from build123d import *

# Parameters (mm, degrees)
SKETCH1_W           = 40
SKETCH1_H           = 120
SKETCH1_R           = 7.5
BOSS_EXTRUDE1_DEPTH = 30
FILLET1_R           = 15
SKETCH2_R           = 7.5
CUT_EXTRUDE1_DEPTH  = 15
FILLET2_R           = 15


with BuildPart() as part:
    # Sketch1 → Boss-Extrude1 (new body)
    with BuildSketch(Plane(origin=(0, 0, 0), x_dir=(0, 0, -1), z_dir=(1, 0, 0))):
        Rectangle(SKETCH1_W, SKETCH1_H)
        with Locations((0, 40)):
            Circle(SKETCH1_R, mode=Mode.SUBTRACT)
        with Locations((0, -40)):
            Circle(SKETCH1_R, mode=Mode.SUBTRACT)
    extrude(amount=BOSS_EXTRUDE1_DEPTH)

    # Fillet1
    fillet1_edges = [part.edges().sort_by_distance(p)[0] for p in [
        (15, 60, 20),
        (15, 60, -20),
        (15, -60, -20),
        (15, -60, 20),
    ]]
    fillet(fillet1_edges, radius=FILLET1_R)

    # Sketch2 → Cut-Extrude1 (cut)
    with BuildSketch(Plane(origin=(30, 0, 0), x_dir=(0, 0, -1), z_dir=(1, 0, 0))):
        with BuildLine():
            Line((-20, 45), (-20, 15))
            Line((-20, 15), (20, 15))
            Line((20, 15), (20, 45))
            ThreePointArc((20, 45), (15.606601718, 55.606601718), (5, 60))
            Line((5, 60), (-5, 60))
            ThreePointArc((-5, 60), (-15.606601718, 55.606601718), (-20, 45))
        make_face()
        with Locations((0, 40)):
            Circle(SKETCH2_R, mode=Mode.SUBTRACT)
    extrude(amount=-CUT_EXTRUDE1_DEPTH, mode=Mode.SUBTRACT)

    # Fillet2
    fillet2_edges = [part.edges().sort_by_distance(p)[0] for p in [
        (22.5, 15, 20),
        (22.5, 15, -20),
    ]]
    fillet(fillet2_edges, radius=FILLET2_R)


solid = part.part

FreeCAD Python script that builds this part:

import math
import FreeCAD as App
import Part
import Sketcher

V = App.Vector
Q = App.Units.Quantity


def edges_at(feature, points):
    """Names of the edges that pass closest to the given points."""
    edges = feature.Shape.Edges
    near = lambda p: min(range(len(edges)), key=lambda i: edges[i].distToShape(Part.Vertex(*p))[0])
    return sorted({f"Edge{near(p) + 1}" for p in points})


def add_polygon(sketch, points):
    """Adds a closed chain of lines whose ends are joined by coincident constraints."""
    first, n = sketch.GeometryCount, len(points)
    for a, b in zip(points, points[1:] + points[:1]):
        sketch.addGeometry(Part.LineSegment(App.Vector(*a, 0), App.Vector(*b, 0)), False)
    for i in range(n):
        sketch.addConstraint(Sketcher.Constraint("Coincident", first + i, 2, first + (i + 1) % n, 1))

doc = App.newDocument("Part")
body = doc.addObject("PartDesign::Body", "Body")

sketch1 = body.newObject("Sketcher::SketchObject", "Sketch")
sketch1.AttachmentSupport = (doc.getObject("YZ_Plane"), [""])
sketch1.MapMode = "FlatFace"
add_polygon(sketch1, [(60, 20), (-60, 20), (-60, -20), (60, -20)])
sketch1.addGeometry(Part.Circle(V(-40, 0, 0), V(0, 0, 1), 8), False)
sketch1.addGeometry(Part.Circle(V(40, 0, 0), V(0, 0, 1), 8), False)
sketch1.addConstraint([
    Sketcher.Constraint("Horizontal", 0),
    Sketcher.Constraint("Vertical", 1),
    Sketcher.Constraint("Horizontal", 2),
    Sketcher.Constraint("Vertical", 3),
    Sketcher.Constraint("Equal", 4, 5),
    Sketcher.Constraint("Symmetric", 4, 3, 5, 3, -1, 1),
    Sketcher.Constraint("Symmetric", 0, 2, 2, 2, -1, 1),
    Sketcher.Constraint("PointOnObject", 4, 3, -1),
    Sketcher.Constraint("Diameter", 4, Q("15 mm")),
    Sketcher.Constraint("DistanceX", 0, 2, 0, 1, Q("120 mm")),
    Sketcher.Constraint("DistanceY", 1, 2, 1, 1, Q("40 mm")),
    Sketcher.Constraint("DistanceX", 4, 3, -1, 1, Q("40 mm")),
])
pad1 = body.newObject("PartDesign::Pad", "Pad")
pad1.Profile = sketch1
pad1.Length = 30
doc.recompute()

fillet = body.newObject("PartDesign::Fillet", "Fillet")
fillet.Base = (pad1, edges_at(pad1, [
    (15, 60, 20),
    (15, 60, -20),
    (15, -60, -20),
    (15, -60, 20),
]))
fillet.Radius = 15

sketch2 = body.newObject("Sketcher::SketchObject", "Sketch001")
sketch2.AttachmentSupport = (doc.getObject("YZ_Plane"), [""])
sketch2.MapMode = "FlatFace"
sketch2.AttachmentOffset = App.Placement(V(0, 0, 30), App.Rotation())
sketch2.addGeometry([
    Part.LineSegment(V(45, 20, 0), V(15, 20, 0)),
    Part.LineSegment(V(15, 20, 0), V(15, -20, 0)),
    Part.LineSegment(V(15, -20, 0), V(45, -20, 0)),
    Part.ArcOfCircle(Part.Circle(V(45, -5, 0), V(0, 0, 1), 15), math.radians(-90), math.radians(0)),
    Part.LineSegment(V(60, -5, 0), V(60, 5, 0)),
    Part.ArcOfCircle(Part.Circle(V(45, 5, 0), V(0, 0, 1), 15), math.radians(0), math.radians(90)),
    Part.Circle(V(40, 0, 0), V(0, 0, 1), 8),
], False)
sketch2.addConstraint([
    Sketcher.Constraint("Coincident", 0, 2, 1, 1),
    Sketcher.Constraint("Coincident", 1, 2, 2, 1),
    Sketcher.Constraint("Tangent", 2, 2, 3, 1),
    Sketcher.Constraint("Tangent", 3, 2, 4, 1),
    Sketcher.Constraint("Tangent", 4, 2, 5, 1),
    Sketcher.Constraint("Tangent", 5, 2, 0, 1),
    Sketcher.Constraint("Horizontal", 0),
    Sketcher.Constraint("Vertical", 1),
    Sketcher.Constraint("Horizontal", 2),
    Sketcher.Constraint("Vertical", 4),
    Sketcher.Constraint("Equal", 3, 5),
    Sketcher.Constraint("PointOnObject", 6, 3, -1),
    Sketcher.Constraint("Diameter", 6, Q("15 mm")),
    Sketcher.Constraint("Radius", 3, Q("15 mm")),
    Sketcher.Constraint("DistanceX", 0, 2, 0, 1, Q("30 mm")),
    Sketcher.Constraint("DistanceY", 1, 2, 1, 1, Q("40 mm")),
    Sketcher.Constraint("DistanceX", -1, 1, 3, 3, Q("45 mm")),
    Sketcher.Constraint("DistanceY", 3, 3, -1, 1, Q("5 mm")),
    Sketcher.Constraint("DistanceX", -1, 1, 6, 3, Q("40 mm")),
])
pocket1 = body.newObject("PartDesign::Pocket", "Pocket")
pocket1.Profile = sketch2
pocket1.Length = 15
doc.recompute()

fillet2 = body.newObject("PartDesign::Fillet", "Fillet001")
fillet2.Base = (pocket1, edges_at(pocket1, [(22.5, 15, 20), (22.5, 15, -20)]))
fillet2.Radius = 15

doc.recompute()
